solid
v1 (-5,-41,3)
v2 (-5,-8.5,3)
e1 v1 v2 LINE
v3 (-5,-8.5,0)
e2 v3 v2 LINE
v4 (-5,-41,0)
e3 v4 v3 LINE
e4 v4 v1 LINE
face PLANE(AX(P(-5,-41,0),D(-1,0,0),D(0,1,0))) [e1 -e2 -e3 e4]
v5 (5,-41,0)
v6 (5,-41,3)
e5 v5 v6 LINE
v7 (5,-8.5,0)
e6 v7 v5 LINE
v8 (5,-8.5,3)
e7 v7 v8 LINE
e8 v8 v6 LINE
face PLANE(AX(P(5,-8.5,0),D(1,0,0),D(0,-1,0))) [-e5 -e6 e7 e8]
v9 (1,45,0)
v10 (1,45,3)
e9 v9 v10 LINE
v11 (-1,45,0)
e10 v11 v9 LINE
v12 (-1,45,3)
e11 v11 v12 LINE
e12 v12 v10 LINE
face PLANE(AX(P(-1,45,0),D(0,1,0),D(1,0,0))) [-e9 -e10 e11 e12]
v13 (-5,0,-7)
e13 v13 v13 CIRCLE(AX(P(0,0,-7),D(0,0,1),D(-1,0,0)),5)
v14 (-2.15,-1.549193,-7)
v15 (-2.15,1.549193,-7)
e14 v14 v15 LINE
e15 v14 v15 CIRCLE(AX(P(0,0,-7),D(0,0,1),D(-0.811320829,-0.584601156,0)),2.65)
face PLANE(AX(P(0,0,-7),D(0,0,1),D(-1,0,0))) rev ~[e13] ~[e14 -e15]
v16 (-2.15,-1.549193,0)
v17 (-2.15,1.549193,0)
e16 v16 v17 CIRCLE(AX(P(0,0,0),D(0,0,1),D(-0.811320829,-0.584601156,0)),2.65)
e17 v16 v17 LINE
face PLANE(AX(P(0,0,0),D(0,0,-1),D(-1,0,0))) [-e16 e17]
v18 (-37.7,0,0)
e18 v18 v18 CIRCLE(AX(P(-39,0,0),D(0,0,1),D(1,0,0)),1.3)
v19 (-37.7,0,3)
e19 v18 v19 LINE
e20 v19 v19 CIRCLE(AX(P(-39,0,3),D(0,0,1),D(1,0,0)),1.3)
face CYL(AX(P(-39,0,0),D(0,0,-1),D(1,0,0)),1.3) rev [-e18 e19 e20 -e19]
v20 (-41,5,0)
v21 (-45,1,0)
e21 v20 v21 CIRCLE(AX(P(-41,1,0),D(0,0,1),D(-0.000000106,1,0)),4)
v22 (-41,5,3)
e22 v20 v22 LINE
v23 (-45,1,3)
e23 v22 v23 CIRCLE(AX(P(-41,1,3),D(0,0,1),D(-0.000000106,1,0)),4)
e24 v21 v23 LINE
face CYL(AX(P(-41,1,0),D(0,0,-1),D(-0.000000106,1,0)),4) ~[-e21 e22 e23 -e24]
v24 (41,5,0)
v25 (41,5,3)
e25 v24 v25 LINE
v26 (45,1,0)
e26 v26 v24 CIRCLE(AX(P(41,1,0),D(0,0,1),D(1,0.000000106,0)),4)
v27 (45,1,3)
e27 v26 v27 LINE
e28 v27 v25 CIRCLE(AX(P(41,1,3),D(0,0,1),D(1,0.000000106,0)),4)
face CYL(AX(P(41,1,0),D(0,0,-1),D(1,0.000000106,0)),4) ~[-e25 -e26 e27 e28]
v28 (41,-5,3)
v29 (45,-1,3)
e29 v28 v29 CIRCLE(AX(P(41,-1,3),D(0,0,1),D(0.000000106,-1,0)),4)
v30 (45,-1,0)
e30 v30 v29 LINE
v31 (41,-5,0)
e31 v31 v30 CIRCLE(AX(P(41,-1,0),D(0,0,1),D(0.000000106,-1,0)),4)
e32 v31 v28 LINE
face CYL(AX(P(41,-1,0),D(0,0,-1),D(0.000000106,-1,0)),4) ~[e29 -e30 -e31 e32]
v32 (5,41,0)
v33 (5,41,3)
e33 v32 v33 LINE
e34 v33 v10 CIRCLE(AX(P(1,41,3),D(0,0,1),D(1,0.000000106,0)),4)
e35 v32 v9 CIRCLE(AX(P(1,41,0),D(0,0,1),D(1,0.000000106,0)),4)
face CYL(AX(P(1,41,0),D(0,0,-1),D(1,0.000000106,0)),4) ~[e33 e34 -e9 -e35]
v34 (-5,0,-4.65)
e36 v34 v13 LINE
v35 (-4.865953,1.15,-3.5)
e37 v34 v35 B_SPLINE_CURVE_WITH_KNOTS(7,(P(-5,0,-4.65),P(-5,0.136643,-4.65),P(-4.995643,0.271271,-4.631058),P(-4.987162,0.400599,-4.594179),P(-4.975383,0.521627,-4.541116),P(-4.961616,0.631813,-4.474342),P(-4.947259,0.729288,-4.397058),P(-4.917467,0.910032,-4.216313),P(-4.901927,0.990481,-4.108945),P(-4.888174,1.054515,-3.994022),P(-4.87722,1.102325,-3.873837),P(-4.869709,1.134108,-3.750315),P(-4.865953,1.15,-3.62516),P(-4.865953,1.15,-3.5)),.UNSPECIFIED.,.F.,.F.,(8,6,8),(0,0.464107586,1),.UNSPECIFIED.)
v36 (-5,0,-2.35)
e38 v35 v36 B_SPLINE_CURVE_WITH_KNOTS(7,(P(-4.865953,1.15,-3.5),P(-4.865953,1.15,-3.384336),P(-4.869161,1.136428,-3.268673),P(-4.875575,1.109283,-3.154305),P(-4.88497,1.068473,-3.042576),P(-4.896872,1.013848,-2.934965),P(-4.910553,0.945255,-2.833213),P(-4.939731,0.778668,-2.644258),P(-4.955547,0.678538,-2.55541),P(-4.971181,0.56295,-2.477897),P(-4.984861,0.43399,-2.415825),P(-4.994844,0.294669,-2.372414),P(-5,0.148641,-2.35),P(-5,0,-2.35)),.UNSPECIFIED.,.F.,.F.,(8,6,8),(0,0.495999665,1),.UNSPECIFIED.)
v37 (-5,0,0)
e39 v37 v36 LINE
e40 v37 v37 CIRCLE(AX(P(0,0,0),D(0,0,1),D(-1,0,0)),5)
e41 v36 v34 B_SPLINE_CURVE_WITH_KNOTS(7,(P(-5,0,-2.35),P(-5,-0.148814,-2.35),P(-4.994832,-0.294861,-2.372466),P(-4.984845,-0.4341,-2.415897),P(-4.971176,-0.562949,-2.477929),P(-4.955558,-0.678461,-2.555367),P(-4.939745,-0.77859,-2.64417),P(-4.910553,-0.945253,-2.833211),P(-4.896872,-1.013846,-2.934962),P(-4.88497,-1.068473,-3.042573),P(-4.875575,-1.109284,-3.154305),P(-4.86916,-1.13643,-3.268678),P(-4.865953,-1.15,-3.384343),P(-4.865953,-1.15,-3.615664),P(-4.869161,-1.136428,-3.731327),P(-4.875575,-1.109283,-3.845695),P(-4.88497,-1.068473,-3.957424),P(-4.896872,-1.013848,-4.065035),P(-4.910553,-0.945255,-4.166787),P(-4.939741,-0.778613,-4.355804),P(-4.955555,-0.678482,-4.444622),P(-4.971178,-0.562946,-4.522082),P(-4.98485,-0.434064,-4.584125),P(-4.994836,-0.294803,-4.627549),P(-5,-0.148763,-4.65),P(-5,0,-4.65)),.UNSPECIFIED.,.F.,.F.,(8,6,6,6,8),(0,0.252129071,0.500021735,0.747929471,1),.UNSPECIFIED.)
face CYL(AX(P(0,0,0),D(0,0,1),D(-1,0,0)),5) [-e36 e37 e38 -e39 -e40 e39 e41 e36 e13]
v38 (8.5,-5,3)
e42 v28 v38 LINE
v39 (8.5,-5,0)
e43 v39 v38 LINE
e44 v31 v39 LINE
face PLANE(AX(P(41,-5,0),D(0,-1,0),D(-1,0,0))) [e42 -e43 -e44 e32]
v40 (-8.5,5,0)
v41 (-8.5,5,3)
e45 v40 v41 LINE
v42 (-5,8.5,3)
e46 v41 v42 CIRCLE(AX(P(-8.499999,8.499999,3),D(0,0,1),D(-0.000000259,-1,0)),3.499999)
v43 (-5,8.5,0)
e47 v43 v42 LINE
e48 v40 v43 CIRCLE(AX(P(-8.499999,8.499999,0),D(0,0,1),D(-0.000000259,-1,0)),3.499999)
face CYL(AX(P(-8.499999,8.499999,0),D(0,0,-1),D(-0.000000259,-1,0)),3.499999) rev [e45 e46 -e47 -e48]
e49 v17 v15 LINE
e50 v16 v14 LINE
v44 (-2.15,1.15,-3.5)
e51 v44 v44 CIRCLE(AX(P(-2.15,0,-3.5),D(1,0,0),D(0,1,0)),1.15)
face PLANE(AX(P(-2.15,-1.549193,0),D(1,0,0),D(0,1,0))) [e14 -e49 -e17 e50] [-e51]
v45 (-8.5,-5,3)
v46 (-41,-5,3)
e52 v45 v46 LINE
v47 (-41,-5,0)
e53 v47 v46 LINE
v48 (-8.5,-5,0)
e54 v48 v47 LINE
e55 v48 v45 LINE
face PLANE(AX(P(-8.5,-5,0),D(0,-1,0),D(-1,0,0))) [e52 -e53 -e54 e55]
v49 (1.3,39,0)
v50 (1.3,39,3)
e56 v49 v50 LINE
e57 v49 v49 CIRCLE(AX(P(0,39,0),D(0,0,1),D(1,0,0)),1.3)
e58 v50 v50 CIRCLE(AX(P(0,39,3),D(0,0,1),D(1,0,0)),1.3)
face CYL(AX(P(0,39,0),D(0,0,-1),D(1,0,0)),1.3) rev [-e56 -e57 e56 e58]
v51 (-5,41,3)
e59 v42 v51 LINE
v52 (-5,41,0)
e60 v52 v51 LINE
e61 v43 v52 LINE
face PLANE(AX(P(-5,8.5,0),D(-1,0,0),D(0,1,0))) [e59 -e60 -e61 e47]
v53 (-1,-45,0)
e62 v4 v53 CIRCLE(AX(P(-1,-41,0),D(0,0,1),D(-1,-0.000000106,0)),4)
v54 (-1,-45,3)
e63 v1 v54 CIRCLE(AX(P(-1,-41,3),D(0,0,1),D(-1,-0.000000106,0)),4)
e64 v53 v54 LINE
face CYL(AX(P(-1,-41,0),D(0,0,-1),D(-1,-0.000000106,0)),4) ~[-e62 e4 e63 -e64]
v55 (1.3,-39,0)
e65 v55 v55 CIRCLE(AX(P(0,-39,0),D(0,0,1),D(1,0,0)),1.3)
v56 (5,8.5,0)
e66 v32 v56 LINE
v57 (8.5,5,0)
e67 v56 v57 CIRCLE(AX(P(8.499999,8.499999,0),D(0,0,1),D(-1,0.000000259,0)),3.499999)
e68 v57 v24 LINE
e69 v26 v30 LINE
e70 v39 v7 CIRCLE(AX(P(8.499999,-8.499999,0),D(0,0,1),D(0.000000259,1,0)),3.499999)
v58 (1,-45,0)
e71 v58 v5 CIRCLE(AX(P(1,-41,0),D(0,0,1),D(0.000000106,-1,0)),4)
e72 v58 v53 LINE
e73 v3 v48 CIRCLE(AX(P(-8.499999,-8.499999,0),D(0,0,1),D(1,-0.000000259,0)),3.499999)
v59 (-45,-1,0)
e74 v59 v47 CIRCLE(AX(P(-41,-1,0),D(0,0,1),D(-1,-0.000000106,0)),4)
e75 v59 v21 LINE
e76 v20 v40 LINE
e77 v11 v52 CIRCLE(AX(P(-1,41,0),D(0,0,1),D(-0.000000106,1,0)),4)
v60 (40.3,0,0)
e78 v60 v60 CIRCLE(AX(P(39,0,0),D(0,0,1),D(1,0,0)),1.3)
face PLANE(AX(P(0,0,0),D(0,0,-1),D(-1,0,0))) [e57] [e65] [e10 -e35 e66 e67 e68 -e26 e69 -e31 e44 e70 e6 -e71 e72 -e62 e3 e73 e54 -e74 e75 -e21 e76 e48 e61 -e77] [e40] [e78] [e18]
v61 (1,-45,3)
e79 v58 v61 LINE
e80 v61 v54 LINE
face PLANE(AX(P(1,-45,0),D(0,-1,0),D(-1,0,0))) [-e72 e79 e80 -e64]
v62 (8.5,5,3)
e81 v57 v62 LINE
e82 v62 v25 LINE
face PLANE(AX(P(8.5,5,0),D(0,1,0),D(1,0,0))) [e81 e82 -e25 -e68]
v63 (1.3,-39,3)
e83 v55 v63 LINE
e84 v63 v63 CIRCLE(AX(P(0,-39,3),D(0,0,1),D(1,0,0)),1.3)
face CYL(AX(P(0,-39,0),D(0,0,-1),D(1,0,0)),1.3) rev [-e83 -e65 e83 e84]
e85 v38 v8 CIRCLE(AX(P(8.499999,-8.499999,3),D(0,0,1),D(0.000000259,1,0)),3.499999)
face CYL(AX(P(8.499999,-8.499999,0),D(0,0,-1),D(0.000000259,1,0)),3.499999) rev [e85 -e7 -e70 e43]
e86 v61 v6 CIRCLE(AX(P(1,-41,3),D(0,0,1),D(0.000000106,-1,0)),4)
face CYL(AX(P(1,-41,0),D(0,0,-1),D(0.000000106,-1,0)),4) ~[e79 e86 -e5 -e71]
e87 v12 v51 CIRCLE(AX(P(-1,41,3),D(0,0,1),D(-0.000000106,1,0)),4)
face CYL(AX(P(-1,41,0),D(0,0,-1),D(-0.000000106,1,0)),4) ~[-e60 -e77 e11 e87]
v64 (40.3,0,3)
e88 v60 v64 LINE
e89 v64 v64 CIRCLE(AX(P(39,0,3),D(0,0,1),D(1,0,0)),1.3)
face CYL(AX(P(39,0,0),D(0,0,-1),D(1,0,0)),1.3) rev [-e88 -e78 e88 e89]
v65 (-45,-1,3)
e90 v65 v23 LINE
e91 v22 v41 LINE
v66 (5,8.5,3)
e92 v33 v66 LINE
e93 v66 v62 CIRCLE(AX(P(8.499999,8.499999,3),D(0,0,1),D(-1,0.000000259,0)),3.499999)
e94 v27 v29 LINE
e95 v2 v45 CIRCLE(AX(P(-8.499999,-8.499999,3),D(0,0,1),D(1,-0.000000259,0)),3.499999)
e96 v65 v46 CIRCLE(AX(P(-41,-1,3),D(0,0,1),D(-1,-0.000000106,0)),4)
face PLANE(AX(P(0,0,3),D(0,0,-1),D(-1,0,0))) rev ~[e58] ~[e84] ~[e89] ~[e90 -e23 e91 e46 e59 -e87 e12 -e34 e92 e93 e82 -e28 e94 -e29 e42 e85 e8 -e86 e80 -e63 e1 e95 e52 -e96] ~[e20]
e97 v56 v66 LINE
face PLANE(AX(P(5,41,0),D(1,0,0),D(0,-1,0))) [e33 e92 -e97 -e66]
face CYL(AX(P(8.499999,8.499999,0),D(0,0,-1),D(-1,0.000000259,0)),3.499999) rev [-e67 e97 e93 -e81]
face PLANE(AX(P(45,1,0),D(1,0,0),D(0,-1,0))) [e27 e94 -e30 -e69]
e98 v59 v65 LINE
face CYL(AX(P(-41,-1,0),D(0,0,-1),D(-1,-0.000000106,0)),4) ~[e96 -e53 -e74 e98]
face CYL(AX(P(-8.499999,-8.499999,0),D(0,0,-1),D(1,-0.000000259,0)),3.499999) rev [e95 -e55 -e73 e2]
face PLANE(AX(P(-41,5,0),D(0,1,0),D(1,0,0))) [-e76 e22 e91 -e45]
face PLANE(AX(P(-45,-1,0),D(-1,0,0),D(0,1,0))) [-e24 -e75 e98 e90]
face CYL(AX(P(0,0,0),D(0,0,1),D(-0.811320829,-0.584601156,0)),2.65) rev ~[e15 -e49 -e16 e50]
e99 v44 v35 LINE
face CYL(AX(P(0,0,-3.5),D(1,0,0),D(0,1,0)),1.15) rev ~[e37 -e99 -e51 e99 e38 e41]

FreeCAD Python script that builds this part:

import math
import FreeCAD as App
import Part
import Sketcher

doc = App.newDocument("Part")
body = doc.addObject("PartDesign::Body", "Body")

sketch1 = body.newObject("Sketcher::SketchObject", "Sketch")
sketch1.AttachmentSupport = (doc.getObject("XY_Plane"), [""])
sketch1.MapMode = "FlatFace"
sketch1.addGeometry([
    Part.Circle(App.Vector(0, 0, 0), App.Vector(0, 0, 1), 5),
    Part.ArcOfCircle(Part.Circle(App.Vector(0, 0, 0), App.Vector(0, 0, 1), 2.6), math.radians(-144), math.radians(144)),
    Part.LineSegment(App.Vector(-2.1, -1.5, 0), App.Vector(-2.1, 1.5, 0)),
], False)
sketch1.addConstraint([
    Sketcher.Constraint("Coincident", 1, 1, 2, 1),
    Sketcher.Constraint("Coincident", 2, 2, 1, 2),
    Sketcher.Constraint("Vertical", 2),
    Sketcher.Constraint("Coincident", 0, 3, -1, 1),
    Sketcher.Constraint("Coincident", 1, 3, -1, 1),
    Sketcher.Constraint("Diameter", 0, 10.0),
    Sketcher.Constraint("Radius", 1, 2.65),
    Sketcher.Constraint("DistanceX", 1, 1, -1, 1, 2.15),
])
pad1 = body.newObject("PartDesign::Pad", "Pad")
pad1.Profile = sketch1
pad1.Length = 7
pad1.Reversed = True

sketch2 = body.newObject("Sketcher::SketchObject", "Sketch001")
sketch2.AttachmentSupport = (doc.getObject("YZ_Plane"), [""])
sketch2.MapMode = "FlatFace"
sketch2.addGeometry(Part.Circle(App.Vector(0, -3.5, 0), App.Vector(0, 0, 1), 1.1), False)
sketch2.addConstraint([
    Sketcher.Constraint("PointOnObject", 0, 3, -2),
    Sketcher.Constraint("Diameter", 0, 2.3),
    Sketcher.Constraint("DistanceY", 0, 3, -1, 1, 3.5),
])
pocket1 = body.newObject("PartDesign::Pocket", "Pocket")
pocket1.Profile = sketch2
pocket1.Length = 5

sketch3 = body.newObject("Sketcher::SketchObject", "Sketch002")
sketch3.AttachmentSupport = (doc.getObject("XY_Plane"), [""])
sketch3.MapMode = "FlatFace"
sketch3.addGeometry([
    Part.LineSegment(App.Vector(-8.5, 5, 0), App.Vector(-41, 5, 0)),
    Part.ArcOfCircle(Part.Circle(App.Vector(-41, 1, 0), App.Vector(0, 0, 1), 4), math.radians(90), math.radians(180)),
    Part.LineSegment(App.Vector(-45, 1, 0), App.Vector(-45, -1, 0)),
    Part.ArcOfCircle(Part.Circle(App.Vector(-41, -1, 0), App.Vector(0, 0, 1), 4), math.radians(-180), math.radians(-90)),
    Part.LineSegment(App.Vector(-41, -5, 0), App.Vector(-8.5, -5, 0)),
    Part.ArcOfCircle(Part.Circle(App.Vector(-8.5, -8.5, 0), App.Vector(0, 0, 1), 3.5), math.radians(0), math.radians(90)),
    Part.LineSegment(App.Vector(-5, -8.5, 0), App.Vector(-5, -41, 0)),
    Part.ArcOfCircle(Part.Circle(App.Vector(-1, -41, 0), App.Vector(0, 0, 1), 4), math.radians(-180), math.radians(-90)),
    Part.LineSegment(App.Vector(-1, -45, 0), App.Vector(1, -45, 0)),
    Part.ArcOfCircle(Part.Circle(App.Vector(1, -41, 0), App.Vector(0, 0, 1), 4), math.radians(-90), math.radians(0)),
    Part.LineSegment(App.Vector(5, -41, 0), App.Vector(5, -8.5, 0)),
    Part.ArcOfCircle(Part.Circle(App.Vector(8.5, -8.5, 0), App.Vector(0, 0, 1), 3.5), math.radians(90), math.radians(180)),
    Part.LineSegment(App.Vector(8.5, -5, 0), App.Vector(41, -5, 0)),
    Part.ArcOfCircle(Part.Circle(App.Vector(41, -1, 0), App.Vector(0, 0, 1), 4), math.radians(-90), math.radians(0)),
    Part.LineSegment(App.Vector(45, -1, 0), App.Vector(45, 1, 0)),
    Part.ArcOfCircle(Part.Circle(App.Vector(41, 1, 0), App.Vector(0, 0, 1), 4), math.radians(0), math.radians(90)),
    Part.LineSegment(App.Vector(41, 5, 0), App.Vector(8.5, 5, 0)),
    Part.ArcOfCircle(Part.Circle(App.Vector(8.5, 8.5, 0), App.Vector(0, 0, 1), 3.5), math.radians(180), math.radians(270)),
    Part.LineSegment(App.Vector(5, 8.5, 0), App.Vector(5, 41, 0)),
    Part.ArcOfCircle(Part.Circle(App.Vector(1, 41, 0), App.Vector(0, 0, 1), 4), math.radians(0), math.radians(90)),
    Part.LineSegment(App.Vector(1, 45, 0), App.Vector(-1, 45, 0)),
    Part.ArcOfCircle(Part.Circle(App.Vector(-1, 41, 0), App.Vector(0, 0, 1), 4), math.radians(90), math.radians(180)),
    Part.LineSegment(App.Vector(-5, 41, 0), App.Vector(-5, 8.5, 0)),
    Part.ArcOfCircle(Part.Circle(App.Vector(-8.5, 8.5, 0), App.Vector(0, 0, 1), 3.5), math.radians(-90), math.radians(0)),
    Part.Circle(App.Vector(0, -39, 0), App.Vector(0, 0, 1), 1.3),
    Part.Circle(App.Vector(39, 0, 0), App.Vector(0, 0, 1), 1.3),
    Part.Circle(App.Vector(-39, 0, 0), App.Vector(0, 0, 1), 1.3),
    Part.Circle(App.Vector(0, 39, 0), App.Vector(0, 0, 1), 1.3),
], False)
sketch3.addConstraint([
    Sketcher.Constraint("Tangent", 0, 2, 1, 1),
    Sketcher.Constraint("Tangent", 1, 2, 2, 1),
    Sketcher.Constraint("Tangent", 2, 2, 3, 1),
    Sketcher.Constraint("Tangent", 3, 2, 4, 1),
    Sketcher.Constraint("Tangent", 4, 2, 5, 2),
    Sketcher.Constraint("Tangent", 5, 1, 6, 1),
    Sketcher.Constraint("Tangent", 6, 2, 7, 1),
    Sketcher.Constraint("Tangent", 7, 2, 8, 1),
    Sketcher.Constraint("Tangent", 8, 2, 9, 1),
    Sketcher.Constraint("Tangent", 9, 2, 10, 1),
    Sketcher.Constraint("Tangent", 10, 2, 11, 2),
    Sketcher.Constraint("Tangent", 11, 1, 12, 1),
    Sketcher.Constraint("Tangent", 12, 2, 13, 1),
    Sketcher.Constraint("Tangent", 13, 2, 14, 1),
    Sketcher.Constraint("Tangent", 14, 2, 15, 1),
    Sketcher.Constraint("Tangent", 15, 2, 16, 1),
    Sketcher.Constraint("Tangent", 16, 2, 17, 2),
    Sketcher.Constraint("Tangent", 17, 1, 18, 1),
    Sketcher.Constraint("Tangent", 18, 2, 19, 1),
    Sketcher.Constraint("Tangent", 19, 2, 20, 1),
    Sketcher.Constraint("Tangent", 20, 2, 21, 1),
    Sketcher.Constraint("Tangent", 21, 2, 22, 1),
    Sketcher.Constraint("Tangent", 22, 2, 23, 2),
    Sketcher.Constraint("Tangent", 23, 1, 0, 1),
    Sketcher.Constraint("Horizontal", 0),
    Sketcher.Constraint("Vertical", 2),
    Sketcher.Constraint("Horizontal", 4),
    Sketcher.Constraint("Vertical", 6),
    Sketcher.Constraint("Horizontal", 8),
    Sketcher.Constraint("Vertical", 10),
    Sketcher.Constraint("Horizontal", 12),
    Sketcher.Constraint("Vertical", 14),
    Sketcher.Constraint("Horizontal", 16),
    Sketcher.Constraint("Vertical", 18),
    Sketcher.Constraint("Horizontal", 20),
    Sketcher.Constraint("Vertical", 22),
    Sketcher.Constraint("Equal", 1, 3),
    Sketcher.Constraint("Equal", 3, 7),
    Sketcher.Constraint("Equal", 7, 9),
    Sketcher.Constraint("Equal", 5, 11),
    Sketcher.Constraint("Equal", 9, 13),
    Sketcher.Constraint("Equal", 13, 15),
    Sketcher.Constraint("Equal", 11, 17),
    Sketcher.Constraint("Equal", 15, 19),
    Sketcher.Constraint("Equal", 19, 21),
    Sketcher.Constraint("Equal", 17, 23),
    Sketcher.Constraint("Equal", 24, 25),
    Sketcher.Constraint("Equal", 25, 26),
    Sketcher.Constraint("Equal", 26, 27),
    Sketcher.Constraint("Symmetric", 1, 3, 13, 3, -1, 1),
    Sketcher.Constraint("Symmetric", 5, 3, 17, 3, -1, 1),
    Sketcher.Constraint("Symmetric", 9, 3, 21, 3, -1, 1),
    Sketcher.Constraint("Symmetric", 25, 3, 26, 3, -1, 1),
    Sketcher.Constraint("Symmetric", 24, 3, 27, 3, -1, 1),
    Sketcher.Constraint("Symmetric", 5, 3, 11, 3, -2),
    Sketcher.Constraint("PointOnObject", 24, 3, -2),
    Sketcher.Constraint("PointOnObject", 25, 3, -1),
    Sketcher.Constraint("Equal", 20, 2),
    Sketcher.Constraint("Equal", 16, 6),
    Sketcher.Constraint("Radius", 1, 4.0),
    Sketcher.Constraint("Diameter", 24, 2.6),
    Sketcher.Constraint("Radius", 5, 3.499999),
    Sketcher.Constraint("DistanceX", 8, 1, 8, 2, 2.0),
    Sketcher.Constraint("DistanceX", 0, 2, 0, 1, 32.5),
    Sketcher.Constraint("DistanceY", 24, 3, -1, 1, 39.0),
    Sketcher.Constraint("DistanceX", -1, 1, 25, 3, 39.0),
])
pad2 = body.newObject("PartDesign::Pad", "Pad001")
pad2.Profile = sketch3
pad2.Length = 3

doc.recompute()
